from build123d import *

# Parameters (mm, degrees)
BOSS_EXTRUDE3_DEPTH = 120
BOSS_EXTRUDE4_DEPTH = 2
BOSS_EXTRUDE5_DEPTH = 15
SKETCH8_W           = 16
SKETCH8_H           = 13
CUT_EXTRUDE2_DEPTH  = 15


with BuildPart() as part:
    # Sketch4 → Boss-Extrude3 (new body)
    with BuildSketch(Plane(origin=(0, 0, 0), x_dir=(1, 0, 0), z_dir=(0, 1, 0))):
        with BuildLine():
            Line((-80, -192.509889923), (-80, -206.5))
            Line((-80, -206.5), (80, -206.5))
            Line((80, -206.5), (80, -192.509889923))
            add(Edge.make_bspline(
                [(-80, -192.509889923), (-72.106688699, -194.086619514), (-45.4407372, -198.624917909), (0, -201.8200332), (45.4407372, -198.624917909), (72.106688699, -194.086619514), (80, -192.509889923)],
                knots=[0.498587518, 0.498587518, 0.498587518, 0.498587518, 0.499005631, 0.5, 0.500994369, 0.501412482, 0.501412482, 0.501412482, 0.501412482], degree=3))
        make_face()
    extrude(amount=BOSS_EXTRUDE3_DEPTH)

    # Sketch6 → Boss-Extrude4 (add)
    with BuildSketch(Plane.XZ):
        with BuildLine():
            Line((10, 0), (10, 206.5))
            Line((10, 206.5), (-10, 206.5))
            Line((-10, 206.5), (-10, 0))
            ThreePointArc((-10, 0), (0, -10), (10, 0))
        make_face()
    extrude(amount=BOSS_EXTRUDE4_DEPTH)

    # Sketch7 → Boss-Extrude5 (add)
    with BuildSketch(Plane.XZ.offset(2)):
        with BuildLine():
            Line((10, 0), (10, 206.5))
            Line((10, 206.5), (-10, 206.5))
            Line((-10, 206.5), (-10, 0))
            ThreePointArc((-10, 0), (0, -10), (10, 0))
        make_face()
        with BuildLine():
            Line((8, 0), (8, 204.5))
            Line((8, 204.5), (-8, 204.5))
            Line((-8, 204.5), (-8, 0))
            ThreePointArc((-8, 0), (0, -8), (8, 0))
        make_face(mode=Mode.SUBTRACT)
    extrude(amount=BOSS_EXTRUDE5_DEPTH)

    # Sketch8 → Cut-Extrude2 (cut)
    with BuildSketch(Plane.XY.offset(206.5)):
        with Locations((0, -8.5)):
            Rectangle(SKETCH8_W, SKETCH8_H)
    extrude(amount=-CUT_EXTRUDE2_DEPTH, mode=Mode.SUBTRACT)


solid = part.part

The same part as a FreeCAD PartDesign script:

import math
import FreeCAD as App
import Part
import Sketcher
from FreeCAD import Vector
Q = App.Units.Quantity

doc = App.newDocument("Part")
params = doc.addObject("Spreadsheet::Sheet", "Params")
for row, (alias, value) in enumerate([
    ("pad1_length", "120 mm"),
    ("sketch2_radius", "10 mm"),
    ("sketch2_height", "206.5 mm"),
    ("pad2_length", "2 mm"),
    ("sketch3_radius", "10 mm"),
    ("sketch3_radius2", "8 mm"),
    ("sketch3_height", "206.5 mm"),
    ("sketch3_height2", "204.5 mm"),
    ("pad3_length", "15 mm"),
    ("sketch4_width", "16 mm"),
    ("sketch4_height", "13 mm"),
    ("pocket1_length", "15 mm"),
], start=1):
    params.set(f"A{row}", alias)
    params.set(f"B{row}", "=" + value)
    params.setAlias(f"B{row}", alias)

body = doc.addObject("PartDesign::Body", "Body")

# Sketch on XZ plane
sketch1 = doc.addObject("Sketcher::SketchObject", "Sketch")
body.addObject(sketch1)
sketch1.AttachmentSupport = (doc.XZ_Plane, [""])
sketch1.MapMode = "FlatFace"
sketch1.addGeometry(Part.LineSegment(Vector(-80, 192.50989, 0), Vector(-80, 206.5, 0)), False)
sketch1.addGeometry(Part.LineSegment(Vector(-80, 206.5, 0), Vector(80, 206.5, 0)), False)
sketch1.addGeometry(Part.LineSegment(Vector(80, 206.5, 0), Vector(80, 192.50989, 0)), False)
sketch1.addGeometry(Part.BSplineCurve([Vector(-80, 192.50989, 0), Vector(-72.106689, 194.08662, 0), Vector(-45.440737, 198.624918, 0), Vector(0, 201.820033, 0), Vector(45.440737, 198.624918, 0), Vector(72.106689, 194.08662, 0), Vector(80, 192.50989, 0)], [4, 1, 1, 1, 4], [0.498587518, 0.499005631, 0.5, 0.500994369, 0.501412482], False, 3, [1, 1, 1, 1, 1, 1, 1], False), False)
sketch1.addConstraint(Sketcher.Constraint("Block", 3))
sketch1.addConstraint(Sketcher.Constraint("Coincident", 0, 2, 1, 1))
sketch1.addConstraint(Sketcher.Constraint("Coincident", 1, 2, 2, 1))
sketch1.addConstraint(Sketcher.Constraint("Coincident", 2, 2, 3, 2))
sketch1.addConstraint(Sketcher.Constraint("Coincident", 3, 1, 0, 1))
sketch1.addConstraint(Sketcher.Constraint("Vertical", 0))
sketch1.addConstraint(Sketcher.Constraint("Horizontal", 1))
sketch1.addConstraint(Sketcher.Constraint("Vertical", 2))
sketch1.addConstraint(Sketcher.Constraint("DistanceY", -1, 1, 0, 2, Q("206.5 mm")))
pad1 = doc.addObject("PartDesign::Pad", "Pad")
body.addObject(pad1)
pad1.Profile = sketch1
pad1.setExpression("Length", "Params.pad1_length")
pad1.Reversed = True

# Sketch on XZ plane
sketch2 = doc.addObject("Sketcher::SketchObject", "Sketch001")
body.addObject(sketch2)
sketch2.AttachmentSupport = (doc.XZ_Plane, [""])
sketch2.MapMode = "FlatFace"
sketch2.addGeometry(Part.LineSegment(Vector(10, 0, 0), Vector(10, 206, 0)), False)
sketch2.addGeometry(Part.LineSegment(Vector(10, 206, 0), Vector(-10, 206, 0)), False)
sketch2.addGeometry(Part.LineSegment(Vector(-10, 206, 0), Vector(-10, 0, 0)), False)
sketch2.addGeometry(Part.ArcOfCircle(Part.Circle(Vector(0, 0, 0), Vector(0, 0, 1), 10), math.radians(180), math.radians(360)), False)
sketch2.addConstraint(Sketcher.Constraint("Coincident", 0, 2, 1, 1))
sketch2.addConstraint(Sketcher.Constraint("Coincident", 1, 2, 2, 1))
sketch2.addConstraint(Sketcher.Constraint("Tangent", 2, 2, 3, 1))
sketch2.addConstraint(Sketcher.Constraint("Tangent", 3, 2, 0, 1))
sketch2.addConstraint(Sketcher.Constraint("Vertical", 0))
sketch2.addConstraint(Sketcher.Constraint("Horizontal", 1))
sketch2.addConstraint(Sketcher.Constraint("Vertical", 2))
sketch2.addConstraint(Sketcher.Constraint("Coincident", 3, 3, -1, 1))
sketch2.addConstraint(Sketcher.Constraint("Radius", 3, Q("10 mm")))
sketch2.addConstraint(Sketcher.Constraint("DistanceY", 0, 1, 0, 2, Q("206.5 mm")))
sketch2.setExpression("Constraints[8]", "Params.sketch2_radius")
sketch2.setExpression("Constraints[9]", "Params.sketch2_height")
pad2 = doc.addObject("PartDesign::Pad", "Pad001")
body.addObject(pad2)
pad2.Profile = sketch2
pad2.setExpression("Length", "Params.pad2_length")

# Sketch on XZ plane
sketch3 = doc.addObject("Sketcher::SketchObject", "Sketch002")
body.addObject(sketch3)
sketch3.AttachmentSupport = (doc.XZ_Plane, [""])
sketch3.MapMode = "FlatFace"
sketch3.AttachmentOffset = App.Placement(Vector(0, 0, 2), App.Rotation())
sketch3.addGeometry(Part.LineSegment(Vector(10, 0, 0), Vector(10, 206, 0)), False)
sketch3.addGeometry(Part.LineSegment(Vector(10, 206, 0), Vector(-10, 206, 0)), False)
sketch3.addGeometry(Part.LineSegment(Vector(-10, 206, 0), Vector(-10, 0, 0)), False)
sketch3.addGeometry(Part.ArcOfCircle(Part.Circle(Vector(0, 0, 0), Vector(0, 0, 1), 10), math.radians(180), math.radians(360)), False)
sketch3.addGeometry(Part.LineSegment(Vector(8, 204, 0), Vector(8, 0, 0)), False)
sketch3.addGeometry(Part.ArcOfCircle(Part.Circle(Vector(0, 0, 0), Vector(0, 0, 1), 8), math.radians(180), math.radians(360)), False)
sketch3.addGeometry(Part.LineSegment(Vector(-8, 0, 0), Vector(-8, 204, 0)), False)
sketch3.addGeometry(Part.LineSegment(Vector(-8, 204, 0), Vector(8, 204, 0)), False)
sketch3.addConstraint(Sketcher.Constraint("Coincident", 0, 2, 1, 1))
sketch3.addConstraint(Sketcher.Constraint("Coincident", 1, 2, 2, 1))
sketch3.addConstraint(Sketcher.Constraint("Tangent", 2, 2, 3, 1))
sketch3.addConstraint(Sketcher.Constraint("Tangent", 3, 2, 0, 1))
sketch3.addConstraint(Sketcher.Constraint("Tangent", 4, 2, 5, 2))
sketch3.addConstraint(Sketcher.Constraint("Tangent", 5, 1, 6, 1))
sketch3.addConstraint(Sketcher.Constraint("Coincident", 6, 2, 7, 1))
sketch3.addConstraint(Sketcher.Constraint("Coincident", 7, 2, 4, 1))
sketch3.addConstraint(Sketcher.Constraint("Vertical", 0))
sketch3.addConstraint(Sketcher.Constraint("Horizontal", 1))
sketch3.addConstraint(Sketcher.Constraint("Vertical", 2))
sketch3.addConstraint(Sketcher.Constraint("Vertical", 4))
sketch3.addConstraint(Sketcher.Constraint("Vertical", 6))
sketch3.addConstraint(Sketcher.Constraint("Horizontal", 7))
sketch3.addConstraint(Sketcher.Constraint("Coincident", 3, 3, -1, 1))
sketch3.addConstraint(Sketcher.Constraint("Coincident", 5, 3, -1, 1))
sketch3.addConstraint(Sketcher.Constraint("Radius", 3, Q("10 mm")))
sketch3.addConstraint(Sketcher.Constraint("Radius", 5, Q("8 mm")))
sketch3.addConstraint(Sketcher.Constraint("DistanceY", 0, 1, 0, 2, Q("206.5 mm")))
sketch3.addConstraint(Sketcher.Constraint("DistanceY", 4, 2, 4, 1, Q("204.5 mm")))
sketch3.setExpression("Constraints[16]", "Params.sketch3_radius")
sketch3.setExpression("Constraints[17]", "Params.sketch3_radius2")
sketch3.setExpression("Constraints[18]", "Params.sketch3_height")
sketch3.setExpression("Constraints[19]", "Params.sketch3_height2")
pad3 = doc.addObject("PartDesign::Pad", "Pad002")
body.addObject(pad3)
pad3.Profile = sketch3
pad3.setExpression("Length", "Params.pad3_length")

# Sketch on XY plane
sketch4 = doc.addObject("Sketcher::SketchObject", "Sketch003")
body.addObject(sketch4)
sketch4.AttachmentSupport = (doc.XY_Plane, [""])
sketch4.MapMode = "FlatFace"
sketch4.AttachmentOffset = App.Placement(Vector(0, 0, 206.5), App.Rotation())
sketch4.addGeometry(Part.LineSegment(Vector(-8, -2, 0), Vector(-8, -15, 0)), False)
sketch4.addGeometry(Part.LineSegment(Vector(-8, -15, 0), Vector(8, -15, 0)), False)
sketch4.addGeometry(Part.LineSegment(Vector(8, -15, 0), Vector(8, -2, 0)), False)
sketch4.addGeometry(Part.LineSegment(Vector(8, -2, 0), Vector(-8, -2, 0)), False)
sketch4.addConstraint(Sketcher.Constraint("Coincident", 0, 2, 1, 1))
sketch4.addConstraint(Sketcher.Constraint("Coincident", 1, 2, 2, 1))
sketch4.addConstraint(Sketcher.Constraint("Coincident", 2, 2, 3, 1))
sketch4.addConstraint(Sketcher.Constraint("Coincident", 3, 2, 0, 1))
sketch4.addConstraint(Sketcher.Constraint("Vertical", 0))
sketch4.addConstraint(Sketcher.Constraint("Horizontal", 1))
sketch4.addConstraint(Sketcher.Constraint("Vertical", 2))
sketch4.addConstraint(Sketcher.Constraint("Horizontal", 3))
sketch4.addConstraint(Sketcher.Constraint("DistanceX", 1, 1, 1, 2, Q("16 mm")))
sketch4.addConstraint(Sketcher.Constraint("DistanceY", 0, 2, 0, 1, Q("13 mm")))
sketch4.addConstraint(Sketcher.Constraint("DistanceX", 0, 2, -1, 1, Q("8 mm")))
sketch4.addConstraint(Sketcher.Constraint("DistanceY", 0, 2, -1, 1, Q("15 mm")))
sketch4.setExpression("Constraints[8]", "Params.sketch4_width")
sketch4.setExpression("Constraints[9]", "Params.sketch4_height")
pocket1 = doc.addObject("PartDesign::Pocket", "Pocket")
body.addObject(pocket1)
pocket1.Profile = sketch4
pocket1.setExpression("Length", "Params.pocket1_length")

doc.recompute()
